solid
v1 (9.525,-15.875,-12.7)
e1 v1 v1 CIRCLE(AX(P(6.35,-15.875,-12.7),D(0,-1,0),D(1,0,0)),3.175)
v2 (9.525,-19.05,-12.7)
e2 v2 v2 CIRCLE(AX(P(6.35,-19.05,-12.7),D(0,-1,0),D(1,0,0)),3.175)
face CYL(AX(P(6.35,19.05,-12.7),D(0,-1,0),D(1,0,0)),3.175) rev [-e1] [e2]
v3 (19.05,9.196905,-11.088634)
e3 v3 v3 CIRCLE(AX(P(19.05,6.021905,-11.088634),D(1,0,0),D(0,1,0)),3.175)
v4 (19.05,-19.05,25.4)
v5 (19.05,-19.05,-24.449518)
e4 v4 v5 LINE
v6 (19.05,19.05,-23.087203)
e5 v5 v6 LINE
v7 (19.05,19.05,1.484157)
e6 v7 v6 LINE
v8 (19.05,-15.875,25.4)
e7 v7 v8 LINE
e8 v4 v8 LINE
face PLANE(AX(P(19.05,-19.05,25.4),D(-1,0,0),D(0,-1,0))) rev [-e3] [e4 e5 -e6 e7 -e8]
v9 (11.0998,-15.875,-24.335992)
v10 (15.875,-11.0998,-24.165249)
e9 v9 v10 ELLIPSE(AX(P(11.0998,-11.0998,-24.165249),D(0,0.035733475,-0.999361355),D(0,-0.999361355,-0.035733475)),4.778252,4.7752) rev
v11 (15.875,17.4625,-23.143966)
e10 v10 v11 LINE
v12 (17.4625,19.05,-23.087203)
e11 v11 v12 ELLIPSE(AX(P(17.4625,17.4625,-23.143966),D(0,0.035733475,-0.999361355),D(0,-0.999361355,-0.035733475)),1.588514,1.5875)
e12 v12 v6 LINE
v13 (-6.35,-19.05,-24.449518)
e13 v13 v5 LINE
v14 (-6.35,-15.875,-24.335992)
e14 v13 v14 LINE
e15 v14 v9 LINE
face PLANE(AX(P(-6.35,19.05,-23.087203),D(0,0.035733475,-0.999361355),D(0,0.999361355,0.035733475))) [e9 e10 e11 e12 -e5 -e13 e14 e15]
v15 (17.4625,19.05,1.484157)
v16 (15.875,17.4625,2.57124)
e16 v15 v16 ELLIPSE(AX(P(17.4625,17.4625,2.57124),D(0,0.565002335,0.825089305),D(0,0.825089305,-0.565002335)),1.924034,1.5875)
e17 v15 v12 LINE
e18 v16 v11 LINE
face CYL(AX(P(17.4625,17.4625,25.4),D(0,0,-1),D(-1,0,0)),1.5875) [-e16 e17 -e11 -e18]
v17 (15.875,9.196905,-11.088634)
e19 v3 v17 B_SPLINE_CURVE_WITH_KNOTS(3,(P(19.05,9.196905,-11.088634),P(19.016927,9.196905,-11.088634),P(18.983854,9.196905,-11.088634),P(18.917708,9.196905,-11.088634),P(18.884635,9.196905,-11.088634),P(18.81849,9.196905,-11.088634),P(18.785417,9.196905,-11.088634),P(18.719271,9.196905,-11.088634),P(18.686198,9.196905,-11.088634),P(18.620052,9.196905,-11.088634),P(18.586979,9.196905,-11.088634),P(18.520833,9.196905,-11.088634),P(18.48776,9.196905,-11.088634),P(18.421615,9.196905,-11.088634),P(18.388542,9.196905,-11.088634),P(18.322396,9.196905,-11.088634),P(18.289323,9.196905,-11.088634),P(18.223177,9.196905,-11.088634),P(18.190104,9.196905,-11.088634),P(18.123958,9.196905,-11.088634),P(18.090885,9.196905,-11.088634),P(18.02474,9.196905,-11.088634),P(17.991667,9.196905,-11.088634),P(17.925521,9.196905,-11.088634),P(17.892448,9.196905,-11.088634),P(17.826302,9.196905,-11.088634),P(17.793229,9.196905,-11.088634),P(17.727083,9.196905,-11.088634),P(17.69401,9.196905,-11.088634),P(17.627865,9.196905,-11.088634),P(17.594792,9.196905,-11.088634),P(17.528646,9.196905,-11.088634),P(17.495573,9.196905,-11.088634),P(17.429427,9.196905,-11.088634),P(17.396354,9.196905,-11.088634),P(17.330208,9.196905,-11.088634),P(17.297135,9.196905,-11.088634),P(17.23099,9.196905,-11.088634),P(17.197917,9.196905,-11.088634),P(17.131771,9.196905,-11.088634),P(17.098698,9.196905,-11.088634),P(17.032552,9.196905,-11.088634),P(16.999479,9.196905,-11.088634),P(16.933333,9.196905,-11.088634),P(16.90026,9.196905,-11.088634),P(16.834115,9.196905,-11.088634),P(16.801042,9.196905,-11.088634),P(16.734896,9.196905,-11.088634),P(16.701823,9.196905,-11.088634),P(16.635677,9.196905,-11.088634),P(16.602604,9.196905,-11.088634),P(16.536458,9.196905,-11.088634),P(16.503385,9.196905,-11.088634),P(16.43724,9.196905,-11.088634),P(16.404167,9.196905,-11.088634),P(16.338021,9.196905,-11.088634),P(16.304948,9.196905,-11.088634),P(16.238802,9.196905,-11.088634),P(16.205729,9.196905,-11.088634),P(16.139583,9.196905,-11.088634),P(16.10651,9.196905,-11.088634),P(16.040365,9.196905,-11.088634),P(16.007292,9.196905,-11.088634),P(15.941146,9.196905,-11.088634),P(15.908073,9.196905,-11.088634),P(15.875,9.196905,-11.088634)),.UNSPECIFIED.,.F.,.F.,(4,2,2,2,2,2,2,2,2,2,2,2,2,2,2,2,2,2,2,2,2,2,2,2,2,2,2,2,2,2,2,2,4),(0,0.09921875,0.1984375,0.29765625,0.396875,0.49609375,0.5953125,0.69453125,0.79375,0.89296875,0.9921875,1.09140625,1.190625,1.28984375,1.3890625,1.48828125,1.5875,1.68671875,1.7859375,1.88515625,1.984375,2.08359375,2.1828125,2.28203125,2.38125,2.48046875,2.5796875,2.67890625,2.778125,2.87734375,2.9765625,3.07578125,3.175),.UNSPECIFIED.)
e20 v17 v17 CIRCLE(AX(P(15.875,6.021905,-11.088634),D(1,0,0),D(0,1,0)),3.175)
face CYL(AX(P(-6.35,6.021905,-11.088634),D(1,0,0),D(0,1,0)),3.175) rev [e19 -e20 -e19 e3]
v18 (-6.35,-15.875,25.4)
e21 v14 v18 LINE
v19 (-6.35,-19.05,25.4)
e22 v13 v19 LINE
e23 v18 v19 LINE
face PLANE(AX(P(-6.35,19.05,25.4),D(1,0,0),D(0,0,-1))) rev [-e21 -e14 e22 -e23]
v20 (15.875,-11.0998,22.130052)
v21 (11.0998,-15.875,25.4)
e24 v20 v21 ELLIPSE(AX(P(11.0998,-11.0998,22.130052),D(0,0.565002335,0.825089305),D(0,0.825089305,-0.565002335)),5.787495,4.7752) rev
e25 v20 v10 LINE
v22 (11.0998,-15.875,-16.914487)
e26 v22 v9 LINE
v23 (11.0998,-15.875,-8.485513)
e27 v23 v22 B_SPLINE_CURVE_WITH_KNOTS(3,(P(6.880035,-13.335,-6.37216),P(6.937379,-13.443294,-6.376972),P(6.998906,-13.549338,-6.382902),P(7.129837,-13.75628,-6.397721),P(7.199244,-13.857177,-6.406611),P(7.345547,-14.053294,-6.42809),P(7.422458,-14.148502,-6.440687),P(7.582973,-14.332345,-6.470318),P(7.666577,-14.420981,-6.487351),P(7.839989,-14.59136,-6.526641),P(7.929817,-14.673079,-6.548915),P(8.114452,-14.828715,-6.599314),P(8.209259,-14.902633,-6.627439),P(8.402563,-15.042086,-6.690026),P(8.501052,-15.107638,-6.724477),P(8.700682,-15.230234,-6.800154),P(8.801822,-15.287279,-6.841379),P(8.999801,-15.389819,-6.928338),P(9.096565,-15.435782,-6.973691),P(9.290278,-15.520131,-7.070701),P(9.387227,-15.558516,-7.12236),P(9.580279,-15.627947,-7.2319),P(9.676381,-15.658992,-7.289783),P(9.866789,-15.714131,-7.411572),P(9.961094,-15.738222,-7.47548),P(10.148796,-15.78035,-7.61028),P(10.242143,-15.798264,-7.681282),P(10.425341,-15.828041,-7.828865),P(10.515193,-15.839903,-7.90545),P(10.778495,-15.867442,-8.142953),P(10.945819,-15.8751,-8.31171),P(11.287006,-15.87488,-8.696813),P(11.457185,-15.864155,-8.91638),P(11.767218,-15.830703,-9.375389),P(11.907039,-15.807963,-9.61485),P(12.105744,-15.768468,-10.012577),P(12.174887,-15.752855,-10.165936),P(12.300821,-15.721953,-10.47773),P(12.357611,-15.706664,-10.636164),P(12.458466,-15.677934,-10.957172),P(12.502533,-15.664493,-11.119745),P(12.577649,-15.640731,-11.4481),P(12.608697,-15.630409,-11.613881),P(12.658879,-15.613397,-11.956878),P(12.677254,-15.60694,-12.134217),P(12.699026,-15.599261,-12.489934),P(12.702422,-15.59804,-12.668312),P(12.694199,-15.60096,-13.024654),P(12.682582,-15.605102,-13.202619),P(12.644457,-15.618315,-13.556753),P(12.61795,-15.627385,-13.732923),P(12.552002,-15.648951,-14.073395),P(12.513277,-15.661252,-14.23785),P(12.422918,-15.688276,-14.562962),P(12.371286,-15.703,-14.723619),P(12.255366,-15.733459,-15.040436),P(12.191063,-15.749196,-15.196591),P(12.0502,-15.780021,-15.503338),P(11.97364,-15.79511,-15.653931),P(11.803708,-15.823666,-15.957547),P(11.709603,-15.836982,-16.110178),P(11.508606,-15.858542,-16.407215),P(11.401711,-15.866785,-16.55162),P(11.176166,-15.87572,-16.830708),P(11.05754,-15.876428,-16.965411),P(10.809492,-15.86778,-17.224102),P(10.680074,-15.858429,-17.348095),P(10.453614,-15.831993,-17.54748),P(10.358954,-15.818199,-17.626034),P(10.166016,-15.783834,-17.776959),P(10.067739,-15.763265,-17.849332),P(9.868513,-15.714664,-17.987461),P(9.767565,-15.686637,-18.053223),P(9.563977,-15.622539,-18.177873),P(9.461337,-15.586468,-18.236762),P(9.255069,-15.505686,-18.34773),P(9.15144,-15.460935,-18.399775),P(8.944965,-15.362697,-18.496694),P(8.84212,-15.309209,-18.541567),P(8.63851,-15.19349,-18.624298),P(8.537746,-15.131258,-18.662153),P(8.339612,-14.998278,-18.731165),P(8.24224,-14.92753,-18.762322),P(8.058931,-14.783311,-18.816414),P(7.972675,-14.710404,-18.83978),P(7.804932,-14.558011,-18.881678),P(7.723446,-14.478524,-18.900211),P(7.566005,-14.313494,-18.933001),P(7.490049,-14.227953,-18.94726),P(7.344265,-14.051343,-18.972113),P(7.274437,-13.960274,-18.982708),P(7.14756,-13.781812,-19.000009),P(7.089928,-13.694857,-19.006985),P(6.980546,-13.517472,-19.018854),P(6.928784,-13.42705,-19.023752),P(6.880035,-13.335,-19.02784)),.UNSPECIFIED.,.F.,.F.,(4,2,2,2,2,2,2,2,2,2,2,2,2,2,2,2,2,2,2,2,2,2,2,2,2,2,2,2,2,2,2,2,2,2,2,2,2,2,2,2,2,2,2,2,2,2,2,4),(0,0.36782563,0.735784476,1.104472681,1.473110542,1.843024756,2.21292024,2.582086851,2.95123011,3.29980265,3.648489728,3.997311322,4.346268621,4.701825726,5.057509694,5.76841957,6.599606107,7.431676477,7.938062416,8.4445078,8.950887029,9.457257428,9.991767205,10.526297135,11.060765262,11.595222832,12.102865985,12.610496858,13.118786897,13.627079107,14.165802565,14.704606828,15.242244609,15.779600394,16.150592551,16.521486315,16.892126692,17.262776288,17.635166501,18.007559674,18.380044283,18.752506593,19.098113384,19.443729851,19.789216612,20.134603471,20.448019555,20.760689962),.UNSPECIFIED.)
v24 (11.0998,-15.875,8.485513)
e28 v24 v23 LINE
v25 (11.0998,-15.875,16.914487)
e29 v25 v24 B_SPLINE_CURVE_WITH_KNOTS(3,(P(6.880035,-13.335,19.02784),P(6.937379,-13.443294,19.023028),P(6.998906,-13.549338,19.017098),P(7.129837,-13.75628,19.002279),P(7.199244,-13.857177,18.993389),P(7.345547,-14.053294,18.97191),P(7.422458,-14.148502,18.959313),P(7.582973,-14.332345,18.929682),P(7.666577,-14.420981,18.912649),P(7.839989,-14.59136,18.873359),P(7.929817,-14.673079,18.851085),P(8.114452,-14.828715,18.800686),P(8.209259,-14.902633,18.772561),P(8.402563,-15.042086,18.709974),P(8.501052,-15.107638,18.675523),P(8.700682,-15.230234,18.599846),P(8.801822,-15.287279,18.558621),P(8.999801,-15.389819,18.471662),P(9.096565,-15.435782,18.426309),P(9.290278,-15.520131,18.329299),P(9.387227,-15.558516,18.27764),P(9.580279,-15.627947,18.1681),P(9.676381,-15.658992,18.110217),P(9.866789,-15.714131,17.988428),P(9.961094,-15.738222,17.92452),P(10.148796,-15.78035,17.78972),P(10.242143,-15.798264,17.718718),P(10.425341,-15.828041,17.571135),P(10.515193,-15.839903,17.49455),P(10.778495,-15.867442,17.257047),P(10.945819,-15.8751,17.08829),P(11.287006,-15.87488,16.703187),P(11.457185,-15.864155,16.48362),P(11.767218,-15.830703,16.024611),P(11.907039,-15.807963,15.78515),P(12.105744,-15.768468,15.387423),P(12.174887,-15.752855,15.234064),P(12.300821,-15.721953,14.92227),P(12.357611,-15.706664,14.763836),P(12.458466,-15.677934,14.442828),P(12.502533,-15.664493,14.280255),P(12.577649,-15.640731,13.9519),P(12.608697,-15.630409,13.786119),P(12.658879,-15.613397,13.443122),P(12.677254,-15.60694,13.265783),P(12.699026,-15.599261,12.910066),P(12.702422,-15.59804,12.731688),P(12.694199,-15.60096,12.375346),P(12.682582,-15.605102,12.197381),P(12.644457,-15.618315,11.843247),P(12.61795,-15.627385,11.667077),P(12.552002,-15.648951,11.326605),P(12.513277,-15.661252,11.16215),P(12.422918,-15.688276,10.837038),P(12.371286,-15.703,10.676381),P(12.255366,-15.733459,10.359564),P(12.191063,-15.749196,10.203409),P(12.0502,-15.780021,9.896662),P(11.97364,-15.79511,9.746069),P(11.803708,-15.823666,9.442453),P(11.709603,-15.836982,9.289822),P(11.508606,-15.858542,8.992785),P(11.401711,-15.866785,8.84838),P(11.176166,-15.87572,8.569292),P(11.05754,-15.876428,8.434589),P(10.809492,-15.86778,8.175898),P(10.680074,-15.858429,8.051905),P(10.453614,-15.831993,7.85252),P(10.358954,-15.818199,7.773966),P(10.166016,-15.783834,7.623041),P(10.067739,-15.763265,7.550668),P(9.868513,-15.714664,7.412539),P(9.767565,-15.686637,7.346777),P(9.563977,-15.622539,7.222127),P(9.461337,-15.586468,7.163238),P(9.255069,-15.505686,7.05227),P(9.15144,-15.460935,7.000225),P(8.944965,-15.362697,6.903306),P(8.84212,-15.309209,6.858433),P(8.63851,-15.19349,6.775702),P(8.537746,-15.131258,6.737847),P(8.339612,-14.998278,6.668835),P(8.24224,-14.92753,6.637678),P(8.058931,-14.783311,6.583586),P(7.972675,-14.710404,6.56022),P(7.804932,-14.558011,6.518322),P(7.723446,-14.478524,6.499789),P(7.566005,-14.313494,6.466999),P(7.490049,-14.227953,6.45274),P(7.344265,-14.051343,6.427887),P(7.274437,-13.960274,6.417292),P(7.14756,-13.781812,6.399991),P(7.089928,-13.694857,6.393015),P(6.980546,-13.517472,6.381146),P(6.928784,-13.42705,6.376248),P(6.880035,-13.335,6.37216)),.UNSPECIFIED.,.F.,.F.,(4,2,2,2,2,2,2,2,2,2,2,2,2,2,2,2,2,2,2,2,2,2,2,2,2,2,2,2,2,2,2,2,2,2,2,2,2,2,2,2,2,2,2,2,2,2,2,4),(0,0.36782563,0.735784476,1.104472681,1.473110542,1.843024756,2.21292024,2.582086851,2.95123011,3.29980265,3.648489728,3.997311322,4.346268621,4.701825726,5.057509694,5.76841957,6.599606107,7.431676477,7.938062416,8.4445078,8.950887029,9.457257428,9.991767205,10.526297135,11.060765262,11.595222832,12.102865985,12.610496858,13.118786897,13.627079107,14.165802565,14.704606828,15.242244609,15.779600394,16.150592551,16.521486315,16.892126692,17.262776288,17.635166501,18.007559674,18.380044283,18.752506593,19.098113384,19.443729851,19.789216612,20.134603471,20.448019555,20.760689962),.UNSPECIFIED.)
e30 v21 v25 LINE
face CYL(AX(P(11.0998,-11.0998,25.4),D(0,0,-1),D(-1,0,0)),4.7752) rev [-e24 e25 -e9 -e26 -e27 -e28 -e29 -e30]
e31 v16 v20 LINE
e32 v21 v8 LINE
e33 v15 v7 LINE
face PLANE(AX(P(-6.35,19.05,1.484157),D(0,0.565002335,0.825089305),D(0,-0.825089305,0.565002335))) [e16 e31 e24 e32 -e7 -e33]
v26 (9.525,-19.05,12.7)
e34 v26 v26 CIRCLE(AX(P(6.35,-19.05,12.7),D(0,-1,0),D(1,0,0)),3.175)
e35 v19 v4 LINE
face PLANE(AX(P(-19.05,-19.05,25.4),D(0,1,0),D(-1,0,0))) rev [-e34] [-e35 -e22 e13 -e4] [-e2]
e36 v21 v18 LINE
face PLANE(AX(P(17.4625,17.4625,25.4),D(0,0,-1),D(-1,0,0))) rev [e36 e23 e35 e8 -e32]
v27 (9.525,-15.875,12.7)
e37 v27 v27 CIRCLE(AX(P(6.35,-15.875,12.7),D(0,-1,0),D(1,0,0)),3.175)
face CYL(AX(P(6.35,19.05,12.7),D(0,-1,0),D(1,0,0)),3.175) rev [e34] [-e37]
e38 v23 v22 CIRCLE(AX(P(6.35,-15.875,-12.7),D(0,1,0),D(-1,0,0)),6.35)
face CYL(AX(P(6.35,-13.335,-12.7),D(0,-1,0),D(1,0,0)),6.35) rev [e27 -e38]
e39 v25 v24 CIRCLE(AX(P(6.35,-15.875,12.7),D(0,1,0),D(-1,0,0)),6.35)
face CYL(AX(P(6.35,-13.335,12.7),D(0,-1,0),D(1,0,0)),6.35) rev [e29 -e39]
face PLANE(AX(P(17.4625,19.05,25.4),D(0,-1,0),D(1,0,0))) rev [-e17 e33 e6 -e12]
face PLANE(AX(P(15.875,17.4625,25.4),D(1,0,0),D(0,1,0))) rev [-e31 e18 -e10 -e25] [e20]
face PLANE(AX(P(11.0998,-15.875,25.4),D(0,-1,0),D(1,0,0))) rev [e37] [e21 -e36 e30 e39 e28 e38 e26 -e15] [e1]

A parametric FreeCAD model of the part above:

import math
import FreeCAD as App
import Part
import Sketcher
from FreeCAD import Vector
Q = App.Units.Quantity

doc = App.newDocument("Part")
params = doc.addObject("Spreadsheet::Sheet", "Params")
for row, (alias, value) in enumerate([
    ("sketch1_width", "1.5 in"),
    ("sketch1_radius", "0.0625 in"),
    ("sketch1_radius2", "0.188 in"),
    ("pad1_length", "2 in"),
    ("sketch2_diameter", "0.25 in"),
    ("sketch2_height", "2 in"),
    ("sketch2_width", "0.5 in"),
    ("sketch3_width", "0.125 in"),
    ("sketch4_diameter", "0.25 in"),
    ("sketch5_diameter", "0.5 in"),
    ("pocket4_length", "0.1 in"),
], start=1):
    params.set(f"A{row}", alias)
    params.set(f"B{row}", "=" + value)
    params.setAlias(f"B{row}", alias)

body = doc.addObject("PartDesign::Body", "Body")

sketch1 = doc.addObject("Sketcher::SketchObject", "Sketch")
body.addObject(sketch1)
sketch1.AttachmentSupport = (doc.XY_Plane, [""])
sketch1.MapMode = "FlatFace"
sketch1.addGeometry([
    Part.LineSegment(Vector(-19.05, -19.05, 0), Vector(19.05, -19.05, 0)),
    Part.LineSegment(Vector(19.05, -19.05, 0), Vector(19.05, 19.05, 0)),
    Part.LineSegment(Vector(19.05, 19.05, 0), Vector(17.4625, 19.05, 0)),
    Part.ArcOfCircle(Part.Circle(Vector(17.4625, 17.4625, 0), Vector(0, 0, 1), 1.5875), math.radians(90), math.radians(180)),
    Part.LineSegment(Vector(15.875, 17.4625, 0), Vector(15.875, -11.0998, 0)),
    Part.ArcOfCircle(Part.Circle(Vector(11.0998, -11.0998, 0), Vector(0, 0, 1), 4.7752), math.radians(-90), math.radians(0)),
    Part.LineSegment(Vector(11.0998, -15.875, 0), Vector(-17.4625, -15.875, 0)),
    Part.ArcOfCircle(Part.Circle(Vector(-17.4625, -17.4625, 0), Vector(0, 0, 1), 1.5875), math.radians(90), math.radians(180)),
    Part.LineSegment(Vector(-19.05, -17.4625, 0), Vector(-19.05, -19.05, 0)),
], False)
sketch1.addConstraint([
    Sketcher.Constraint("Coincident", 0, 2, 1, 1),
    Sketcher.Constraint("Coincident", 1, 2, 2, 1),
    Sketcher.Constraint("Tangent", 2, 2, 3, 1),
    Sketcher.Constraint("Tangent", 3, 2, 4, 1),
    Sketcher.Constraint("Tangent", 4, 2, 5, 2),
    Sketcher.Constraint("Tangent", 5, 1, 6, 1),
    Sketcher.Constraint("Tangent", 6, 2, 7, 1),
    Sketcher.Constraint("Tangent", 7, 2, 8, 1),
    Sketcher.Constraint("Coincident", 8, 2, 0, 1),
    Sketcher.Constraint("Horizontal", 0),
    Sketcher.Constraint("Vertical", 1),
    Sketcher.Constraint("Horizontal", 2),
    Sketcher.Constraint("Vertical", 4),
    Sketcher.Constraint("Horizontal", 6),
    Sketcher.Constraint("Vertical", 8),
    Sketcher.Constraint("Equal", 3, 7),
    Sketcher.Constraint("Symmetric", 3, 3, 7, 3, -1, 1),
    Sketcher.Constraint("Symmetric", 1, 2, 8, 2, -1, 1),
    Sketcher.Constraint("Equal", 0, 1),
    Sketcher.Constraint("DistanceX", 0, 1, 0, 2, Q("1.5 in")),
    Sketcher.Constraint("Radius", 3, Q("0.0625 in")),
    Sketcher.Constraint("Radius", 5, Q("0.188 in")),
])
sketch1.setExpression("Constraints[19]", "Params.sketch1_width")
sketch1.setExpression("Constraints[20]", "Params.sketch1_radius")
sketch1.setExpression("Constraints[21]", "Params.sketch1_radius2")
pad1 = doc.addObject("PartDesign::Pad", "Pad")
body.addObject(pad1)
pad1.Profile = sketch1
pad1.setExpression("Length", "Params.pad1_length")
pad1.Midplane = True

sketch2 = doc.addObject("Sketcher::SketchObject", "Sketch001")
body.addObject(sketch2)
sketch2.AttachmentSupport = (doc.XZ_Plane, [""])
sketch2.MapMode = "FlatFace"
sketch2.AttachmentOffset = App.Placement(Vector(0, 0, 0.75 * 25.4), App.Rotation())
sketch2.addGeometry([
    Part.Circle(Vector(6.35, 12.7, 0), Vector(0, 0, 1), 3.175),
    Part.Circle(Vector(6.35, -12.7, 0), Vector(0, 0, 1), 3.175),
    Part.LineSegment(Vector(-19.05, 25.4, 0), Vector(-19.05, -25.4, 0)),
    Part.LineSegment(Vector(-19.05, -25.4, 0), Vector(-6.35, -25.4, 0)),
    Part.LineSegment(Vector(-6.35, -25.4, 0), Vector(-6.35, 25.4, 0)),
    Part.LineSegment(Vector(-6.35, 25.4, 0), Vector(-19.05, 25.4, 0)),
], False)
sketch2.addConstraint([
    Sketcher.Constraint("Coincident", 2, 2, 3, 1),
    Sketcher.Constraint("Coincident", 3, 2, 4, 1),
    Sketcher.Constraint("Coincident", 4, 2, 5, 1),
    Sketcher.Constraint("Coincident", 5, 2, 2, 1),
    Sketcher.Constraint("Vertical", 2),
    Sketcher.Constraint("Horizontal", 3),
    Sketcher.Constraint("Vertical", 4),
    Sketcher.Constraint("Horizontal", 5),
    Sketcher.Constraint("Equal", 0, 1),
    Sketcher.Constraint("Symmetric", 0, 3, 1, 3, -1),
    Sketcher.Constraint("Diameter", 0, Q("0.25 in")),
    Sketcher.Constraint("DistanceY", 2, 2, 2, 1, Q("2 in")),
    Sketcher.Constraint("DistanceX", 3, 1, 3, 2, Q("0.5 in")),
    Sketcher.Constraint("DistanceY", 2, 2, -1, 1, Q("1 in")),
    Sketcher.Constraint("DistanceY", 1, 3, 0, 3, Q("1 in")),
    Sketcher.Constraint("DistanceX", 2, 2, 1, 3, Q("1 in")),
    Sketcher.Constraint("DistanceX", -1, 1, 0, 3, Q("0.25 in")),
])
sketch2.setExpression("Constraints[10]", "Params.sketch2_diameter")
sketch2.setExpression("Constraints[11]", "Params.sketch2_height")
sketch2.setExpression("Constraints[12]", "Params.sketch2_width")
pocket1 = doc.addObject("PartDesign::Pocket", "Pocket")
body.addObject(pocket1)
pocket1.Profile = sketch2
pocket1.Type = "ThroughAll"

sketch3 = doc.addObject("Sketcher::SketchObject", "Sketch002")
body.addObject(sketch3)
sketch3.AttachmentSupport = (doc.YZ_Plane, [""])
sketch3.MapMode = "FlatFace"
sketch3.AttachmentOffset = App.Placement(Vector(0, 0, 0.75 * 25.4), App.Rotation())
sketch3.addGeometry([
    Part.LineSegment(Vector(26.889, 33.239, 0), Vector(-26.889, 33.239, 0)),
    Part.LineSegment(Vector(-26.889, 33.239, 0), Vector(-26.889, -33.239, 0)),
    Part.LineSegment(Vector(-26.889, -33.239, 0), Vector(26.889, -33.239, 0)),
    Part.LineSegment(Vector(26.889, -33.239, 0), Vector(26.889, 33.239, 0)),
    Part.LineSegment(Vector(19.05, 1.484157, 0), Vector(19.05, -23.087203, 0)),
    Part.LineSegment(Vector(19.05, -23.087203, 0), Vector(-19.05, -24.449518, 0)),
    Part.LineSegment(Vector(-19.05, -24.449518, 0), Vector(-19.05, 25.4, 0)),
    Part.LineSegment(Vector(-19.05, 25.4, 0), Vector(-15.875, 25.4, 0)),
    Part.LineSegment(Vector(-15.875, 25.4, 0), Vector(19.05, 1.484157, 0)),
], False)
sketch3.addConstraint([
    Sketcher.Constraint("Coincident", 0, 2, 1, 1),
    Sketcher.Constraint("Coincident", 1, 2, 2, 1),
    Sketcher.Constraint("Coincident", 2, 2, 3, 1),
    Sketcher.Constraint("Coincident", 3, 2, 0, 1),
    Sketcher.Constraint("Coincident", 4, 2, 5, 1),
    Sketcher.Constraint("Coincident", 5, 2, 6, 1),
    Sketcher.Constraint("Coincident", 6, 2, 7, 1),
    Sketcher.Constraint("Coincident", 7, 2, 8, 1),
    Sketcher.Constraint("Coincident", 8, 2, 4, 1),
    Sketcher.Constraint("Horizontal", 0),
    Sketcher.Constraint("Vertical", 1),
    Sketcher.Constraint("Horizontal", 2),
    Sketcher.Constraint("Vertical", 3),
    Sketcher.Constraint("Vertical", 4),
    Sketcher.Constraint("Vertical", 6),
    Sketcher.Constraint("Horizontal", 7),
    Sketcher.Constraint("Symmetric", 0, 2, 2, 2, -1, 1),
    Sketcher.Constraint("DistanceY", -1, 1, 6, 2, Q("1 in")),
    Sketcher.Constraint("DistanceX", 5, 2, 4, 2, Q("1.5 in")),
    Sketcher.Constraint("DistanceX", 7, 1, 7, 2, Q("0.125 in")),
    Sketcher.Constraint("DistanceX", -1, 1, 4, 2, Q("0.75 in")),
    Sketcher.Constraint("DistanceX", 0, 2, 0, 1, 53.778),
    Sketcher.Constraint("DistanceY", 1, 2, 1, 1, 66.478),
    Sketcher.Constraint("DistanceY", 4, 2, 4, 1, 24.57136),
    Sketcher.Constraint("DistanceY", 6, 1, 6, 2, 49.849518),
    Sketcher.Constraint("Distance", 8, 42.328751),
])
sketch3.setExpression("Constraints[19]", "Params.sketch3_width")
pocket2 = doc.addObject("PartDesign::Pocket", "Pocket001")
body.addObject(pocket2)
pocket2.Profile = sketch3
pocket2.Type = "ThroughAll"

sketch4 = doc.addObject("Sketcher::SketchObject", "Sketch003")
body.addObject(sketch4)
sketch4.AttachmentSupport = (doc.YZ_Plane, [""])
sketch4.MapMode = "FlatFace"
sketch4.AttachmentOffset = App.Placement(Vector(0, 0, 0.75 * 25.4), App.Rotation())
sketch4.addGeometry(Part.Circle(Vector(6.021905, -11.088634, 0), Vector(0, 0, 1), 3.175), False)
sketch4.addConstraint([
    Sketcher.Constraint("Diameter", 0, Q("0.25 in")),
    Sketcher.Constraint("DistanceX", -1, 1, 0, 3, 6.021905),
    Sketcher.Constraint("DistanceY", 0, 3, -1, 1, 11.088634),
])
sketch4.setExpression("Constraints[0]", "Params.sketch4_diameter")
pocket3 = doc.addObject("PartDesign::Pocket", "Pocket002")
body.addObject(pocket3)
pocket3.Profile = sketch4
pocket3.Type = "ThroughAll"

sketch5 = doc.addObject("Sketcher::SketchObject", "Sketch004")
body.addObject(sketch5)
sketch5.AttachmentSupport = (doc.XZ_Plane, [""])
sketch5.MapMode = "FlatFace"
sketch5.AttachmentOffset = App.Placement(Vector(0, 0, 0.625 * 25.4), App.Rotation())
sketch5.addGeometry([
    Part.Circle(Vector(6.35, 12.7, 0), Vector(0, 0, 1), 6.35),
    Part.Circle(Vector(6.35, -12.7, 0), Vector(0, 0, 1), 6.35),
], False)
sketch5.addConstraint([
    Sketcher.Constraint("Equal", 0, 1),
    Sketcher.Constraint("Symmetric", 0, 3, 1, 3, -1),
    Sketcher.Constraint("Diameter", 0, Q("0.5 in")),
    Sketcher.Constraint("DistanceY", 1, 3, 0, 3, Q("1 in")),
    Sketcher.Constraint("DistanceX", -1, 1, 0, 3, Q("0.25 in")),
])
sketch5.setExpression("Constraints[2]", "Params.sketch5_diameter")
pocket4 = doc.addObject("PartDesign::Pocket", "Pocket003")
body.addObject(pocket4)
pocket4.Profile = sketch5
pocket4.setExpression("Length", "Params.pocket4_length")

doc.recompute()
